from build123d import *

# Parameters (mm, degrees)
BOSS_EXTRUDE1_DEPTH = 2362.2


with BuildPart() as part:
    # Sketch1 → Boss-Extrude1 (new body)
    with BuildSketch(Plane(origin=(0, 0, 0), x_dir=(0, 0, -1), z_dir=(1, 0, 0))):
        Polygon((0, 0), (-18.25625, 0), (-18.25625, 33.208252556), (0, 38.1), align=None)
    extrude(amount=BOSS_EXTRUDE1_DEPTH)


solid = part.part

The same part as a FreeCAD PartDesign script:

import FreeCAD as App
import Part
import Sketcher
from FreeCAD import Vector
Q = App.Units.Quantity


def add_polygon(sketch, points):
    """Adds a closed chain of lines whose ends are joined by coincident constraints."""
    first, n = sketch.GeometryCount, len(points)
    for a, b in zip(points, points[1:] + points[:1]):
        sketch.addGeometry(Part.LineSegment(App.Vector(*a, 0), App.Vector(*b, 0)), False)
    for i in range(n):
        sketch.addConstraint(Sketcher.Constraint("Coincident", first + i, 2, first + (i + 1) % n, 1))

doc = App.newDocument("Part")
body = doc.addObject("PartDesign::Body", "Body")

# Sketch on YZ plane
sketch1 = doc.addObject("Sketcher::SketchObject", "Sketch")
body.addObject(sketch1)
sketch1.AttachmentSupport = (doc.YZ_Plane, [""])
sketch1.MapMode = "FlatFace"
add_polygon(sketch1, [(0, 18.25625), (0, 0), (38.1, 0), (33.208253, 18.25625)])  # lines 0-3
sketch1.addConstraint(Sketcher.Constraint("Vertical", 0))
sketch1.addConstraint(Sketcher.Constraint("Horizontal", 1))
sketch1.addConstraint(Sketcher.Constraint("Horizontal", 3))
sketch1.addConstraint(Sketcher.Constraint("Coincident", 0, 2, -1, 1))
sketch1.addConstraint(Sketcher.Constraint("DistanceX", 1, 1, 1, 2, Q("1.5 in")))
sketch1.addConstraint(Sketcher.Constraint("Angle", 2, Q("105 deg")))
sketch1.addConstraint(Sketcher.Constraint("DistanceY", 0, 2, 0, 1, Q("0.71875 in")))
pad1 = doc.addObject("PartDesign::Pad", "Pad")
body.addObject(pad1)
pad1.Profile = sketch1
pad1.Length = Q("93 in")

doc.recompute()
